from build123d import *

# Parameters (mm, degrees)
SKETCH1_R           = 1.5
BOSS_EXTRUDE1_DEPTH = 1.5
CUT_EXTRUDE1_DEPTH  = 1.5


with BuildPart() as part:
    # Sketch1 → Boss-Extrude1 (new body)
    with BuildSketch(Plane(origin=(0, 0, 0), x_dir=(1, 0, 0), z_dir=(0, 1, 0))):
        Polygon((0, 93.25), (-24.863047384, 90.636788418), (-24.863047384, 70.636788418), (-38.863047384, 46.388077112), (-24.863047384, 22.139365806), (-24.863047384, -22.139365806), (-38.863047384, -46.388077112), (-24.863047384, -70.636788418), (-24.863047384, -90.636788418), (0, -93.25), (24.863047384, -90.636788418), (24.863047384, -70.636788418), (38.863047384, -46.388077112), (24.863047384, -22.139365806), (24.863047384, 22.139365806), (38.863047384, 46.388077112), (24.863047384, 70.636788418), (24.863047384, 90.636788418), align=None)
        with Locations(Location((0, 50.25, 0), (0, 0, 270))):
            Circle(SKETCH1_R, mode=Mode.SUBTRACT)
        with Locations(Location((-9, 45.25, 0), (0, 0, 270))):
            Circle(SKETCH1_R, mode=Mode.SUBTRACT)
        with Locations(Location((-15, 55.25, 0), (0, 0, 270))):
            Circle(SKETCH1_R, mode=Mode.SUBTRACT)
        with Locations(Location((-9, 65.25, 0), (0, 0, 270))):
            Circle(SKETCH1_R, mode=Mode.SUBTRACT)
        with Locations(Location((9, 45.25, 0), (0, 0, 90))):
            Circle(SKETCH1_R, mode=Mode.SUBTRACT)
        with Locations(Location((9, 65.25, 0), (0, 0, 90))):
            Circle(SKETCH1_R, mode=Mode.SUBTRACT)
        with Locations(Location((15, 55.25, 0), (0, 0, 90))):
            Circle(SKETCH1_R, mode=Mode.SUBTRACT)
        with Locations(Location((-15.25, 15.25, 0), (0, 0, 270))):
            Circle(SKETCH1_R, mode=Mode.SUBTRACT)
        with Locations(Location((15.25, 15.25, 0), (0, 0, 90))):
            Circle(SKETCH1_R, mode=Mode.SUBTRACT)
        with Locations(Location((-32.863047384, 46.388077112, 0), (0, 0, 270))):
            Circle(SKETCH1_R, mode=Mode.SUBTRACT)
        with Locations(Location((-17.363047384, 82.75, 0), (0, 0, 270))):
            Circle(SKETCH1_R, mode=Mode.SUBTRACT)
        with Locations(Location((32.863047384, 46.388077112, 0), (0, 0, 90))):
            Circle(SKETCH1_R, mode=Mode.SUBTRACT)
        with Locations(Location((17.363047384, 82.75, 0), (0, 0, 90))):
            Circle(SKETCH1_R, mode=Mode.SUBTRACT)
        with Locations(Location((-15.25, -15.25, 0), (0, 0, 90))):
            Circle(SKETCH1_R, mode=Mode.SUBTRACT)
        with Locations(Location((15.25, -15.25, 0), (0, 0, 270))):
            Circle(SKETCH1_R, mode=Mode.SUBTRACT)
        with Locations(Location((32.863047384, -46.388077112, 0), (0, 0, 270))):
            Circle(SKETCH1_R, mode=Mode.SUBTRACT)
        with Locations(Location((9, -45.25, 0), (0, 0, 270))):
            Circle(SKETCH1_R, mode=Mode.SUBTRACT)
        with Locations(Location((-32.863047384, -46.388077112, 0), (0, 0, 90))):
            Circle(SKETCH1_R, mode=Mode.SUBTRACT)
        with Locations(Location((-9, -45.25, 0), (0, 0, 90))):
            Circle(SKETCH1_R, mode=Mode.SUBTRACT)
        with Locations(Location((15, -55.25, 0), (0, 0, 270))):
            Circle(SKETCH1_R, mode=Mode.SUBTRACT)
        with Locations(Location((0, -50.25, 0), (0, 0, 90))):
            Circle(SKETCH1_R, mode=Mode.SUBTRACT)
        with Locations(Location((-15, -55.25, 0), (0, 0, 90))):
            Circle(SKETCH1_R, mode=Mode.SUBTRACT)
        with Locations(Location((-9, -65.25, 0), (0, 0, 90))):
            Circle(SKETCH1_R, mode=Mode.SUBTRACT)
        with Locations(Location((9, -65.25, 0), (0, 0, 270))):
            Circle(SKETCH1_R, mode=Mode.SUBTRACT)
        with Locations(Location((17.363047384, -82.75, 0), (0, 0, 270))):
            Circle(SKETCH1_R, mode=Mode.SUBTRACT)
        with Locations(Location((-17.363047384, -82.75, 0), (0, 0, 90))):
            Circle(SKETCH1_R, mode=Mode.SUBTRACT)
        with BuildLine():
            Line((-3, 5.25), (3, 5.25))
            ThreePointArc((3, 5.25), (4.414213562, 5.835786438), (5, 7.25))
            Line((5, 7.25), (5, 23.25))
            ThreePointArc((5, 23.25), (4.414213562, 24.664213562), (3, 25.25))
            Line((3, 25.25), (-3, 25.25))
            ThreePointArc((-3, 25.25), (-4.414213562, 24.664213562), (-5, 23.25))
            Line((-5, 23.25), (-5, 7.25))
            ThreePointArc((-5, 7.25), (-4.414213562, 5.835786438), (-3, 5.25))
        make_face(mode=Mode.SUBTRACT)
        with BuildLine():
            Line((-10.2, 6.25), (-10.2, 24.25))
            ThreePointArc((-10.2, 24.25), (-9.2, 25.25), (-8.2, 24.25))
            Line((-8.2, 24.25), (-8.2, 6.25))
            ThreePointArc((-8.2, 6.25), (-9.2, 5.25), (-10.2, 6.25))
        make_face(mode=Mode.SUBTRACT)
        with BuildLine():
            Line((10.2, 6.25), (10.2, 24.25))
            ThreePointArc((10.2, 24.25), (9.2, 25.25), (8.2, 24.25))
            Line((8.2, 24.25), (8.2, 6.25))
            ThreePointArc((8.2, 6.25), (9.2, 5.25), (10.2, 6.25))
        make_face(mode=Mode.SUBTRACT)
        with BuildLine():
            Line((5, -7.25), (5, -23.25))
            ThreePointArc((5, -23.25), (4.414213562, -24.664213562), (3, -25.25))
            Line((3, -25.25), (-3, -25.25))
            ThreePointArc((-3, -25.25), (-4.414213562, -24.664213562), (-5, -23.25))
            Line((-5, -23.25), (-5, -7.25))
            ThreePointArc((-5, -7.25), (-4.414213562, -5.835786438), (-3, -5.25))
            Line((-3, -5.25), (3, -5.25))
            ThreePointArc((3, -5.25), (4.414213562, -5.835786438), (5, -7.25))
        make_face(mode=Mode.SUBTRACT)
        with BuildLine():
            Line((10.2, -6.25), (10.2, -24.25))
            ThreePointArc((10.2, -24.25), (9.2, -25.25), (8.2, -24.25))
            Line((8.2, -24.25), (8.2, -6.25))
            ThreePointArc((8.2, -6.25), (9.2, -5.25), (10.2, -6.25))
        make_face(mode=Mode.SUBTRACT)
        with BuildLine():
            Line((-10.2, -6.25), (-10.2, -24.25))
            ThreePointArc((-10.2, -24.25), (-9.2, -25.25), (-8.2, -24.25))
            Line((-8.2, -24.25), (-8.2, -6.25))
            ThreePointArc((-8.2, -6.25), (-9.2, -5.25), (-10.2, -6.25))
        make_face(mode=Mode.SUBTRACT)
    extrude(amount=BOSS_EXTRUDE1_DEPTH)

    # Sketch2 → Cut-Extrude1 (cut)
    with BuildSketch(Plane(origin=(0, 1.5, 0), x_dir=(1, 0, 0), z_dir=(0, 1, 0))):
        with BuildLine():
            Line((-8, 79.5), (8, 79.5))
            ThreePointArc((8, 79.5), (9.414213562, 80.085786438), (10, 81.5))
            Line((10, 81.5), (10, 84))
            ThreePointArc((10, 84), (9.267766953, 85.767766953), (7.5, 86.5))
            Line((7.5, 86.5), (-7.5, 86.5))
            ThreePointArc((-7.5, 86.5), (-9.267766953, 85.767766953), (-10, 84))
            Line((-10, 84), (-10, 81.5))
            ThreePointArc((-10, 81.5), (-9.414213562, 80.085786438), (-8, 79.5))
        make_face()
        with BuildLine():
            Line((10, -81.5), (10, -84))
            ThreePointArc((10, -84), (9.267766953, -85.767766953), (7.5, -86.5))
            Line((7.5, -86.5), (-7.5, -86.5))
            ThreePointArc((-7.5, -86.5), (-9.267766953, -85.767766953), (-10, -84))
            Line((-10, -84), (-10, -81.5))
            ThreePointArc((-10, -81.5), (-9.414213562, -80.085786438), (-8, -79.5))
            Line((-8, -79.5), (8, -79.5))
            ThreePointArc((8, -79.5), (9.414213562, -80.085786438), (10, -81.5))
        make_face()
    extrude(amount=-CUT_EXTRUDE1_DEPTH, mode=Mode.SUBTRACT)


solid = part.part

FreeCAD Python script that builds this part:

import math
import FreeCAD as App
import Part
import Sketcher

V = App.Vector
Q = App.Units.Quantity


def add_polygon(sketch, points):
    """Adds a closed chain of lines whose ends are joined by coincident constraints."""
    first, n = sketch.GeometryCount, len(points)
    for a, b in zip(points, points[1:] + points[:1]):
        sketch.addGeometry(Part.LineSegment(App.Vector(*a, 0), App.Vector(*b, 0)), False)
    for i in range(n):
        sketch.addConstraint(Sketcher.Constraint("Coincident", first + i, 2, first + (i + 1) % n, 1))

doc = App.newDocument("Part")
body = doc.addObject("PartDesign::Body", "Body")

# Sketch on XZ plane
sketch1 = body.newObject("Sketcher::SketchObject", "Sketch")
sketch1.AttachmentSupport = (doc.getObject("XZ_Plane"), [""])
sketch1.MapMode = "FlatFace"
add_polygon(sketch1, [(0, -93.2), (-24.9, -90.6), (-24.9, -70.6), (-38.9, -46.4), (-24.9, -22.1), (-24.9, 22.1), (-38.9, 46.4), (-24.9, 70.6), (-24.9, 90.6), (0, 93.2), (24.9, 90.6), (24.9, 70.6), (38.9, 46.4), (24.9, 22.1), (24.9, -22.1), (38.9, -46.4), (24.9, -70.6), (24.9, -90.6)])  # lines 0-17
sketch1.addGeometry(Part.Circle(V(-17.4, 82.8, 0), V(0, 0, 1), 1.5), False)  # 18
sketch1.addGeometry(Part.Circle(V(-32.9, 46.4, 0), V(0, 0, 1), 1.5), False)  # 19
sketch1.addGeometry(Part.Circle(V(-9, 65.2, 0), V(0, 0, 1), 1.5), False)  # 20
sketch1.addGeometry(Part.Circle(V(-15, 55.2, 0), V(0, 0, 1), 1.5), False)  # 21
sketch1.addGeometry(Part.Circle(V(-9, 45.2, 0), V(0, 0, 1), 1.5), False)  # 22
sketch1.addGeometry(Part.Circle(V(-15.2, 15.2, 0), V(0, 0, 1), 1.5), False)  # 23
sketch1.addGeometry(Part.LineSegment(V(-10.2, 24.2, 0), V(-10.2, 6.2, 0)), False)  # 24
sketch1.addGeometry(Part.ArcOfCircle(Part.Circle(V(-9.2, 6.2, 0), V(0, 0, 1), 1), math.radians(180), math.radians(360)), False)  # 25
sketch1.addGeometry(Part.LineSegment(V(-8.2, 6.2, 0), V(-8.2, 24.2, 0)), False)  # 26
sketch1.addGeometry(Part.ArcOfCircle(Part.Circle(V(-9.2, 24.2, 0), V(0, 0, 1), 1), math.radians(0), math.radians(180)), False)  # 27
sketch1.addGeometry(Part.Circle(V(9, 65.2, 0), V(0, 0, 1), 1.5), False)  # 28
sketch1.addGeometry(Part.Circle(V(0, 50.2, 0), V(0, 0, 1), 1.5), False)  # 29
sketch1.addGeometry(Part.Circle(V(15, 55.2, 0), V(0, 0, 1), 1.5), False)  # 30
sketch1.addGeometry(Part.Circle(V(9, 45.2, 0), V(0, 0, 1), 1.5), False)  # 31
sketch1.addGeometry(Part.Circle(V(17.4, 82.8, 0), V(0, 0, 1), 1.5), False)  # 32
sketch1.addGeometry(Part.Circle(V(32.9, 46.4, 0), V(0, 0, 1), 1.5), False)  # 33
sketch1.addGeometry(Part.ArcOfCircle(Part.Circle(V(3, 7.3, 0), V(0, 0, 1), 2), math.radians(-90), math.radians(0)), False)  # 34
sketch1.addGeometry(Part.LineSegment(V(5, 7.2, 0), V(5, 23.2, 0)), False)  # 35
sketch1.addGeometry(Part.ArcOfCircle(Part.Circle(V(3, 23.2, 0), V(0, 0, 1), 2), math.radians(0), math.radians(90)), False)  # 36
sketch1.addGeometry(Part.LineSegment(V(3, 25.2, 0), V(-3, 25.2, 0)), False)  # 37
sketch1.addGeometry(Part.ArcOfCircle(Part.Circle(V(-3, 23.2, 0), V(0, 0, 1), 2), math.radians(90), math.radians(180)), False)  # 38
sketch1.addGeometry(Part.LineSegment(V(-5, 23.2, 0), V(-5, 7.2, 0)), False)  # 39
sketch1.addGeometry(Part.ArcOfCircle(Part.Circle(V(-3, 7.3, 0), V(0, 0, 1), 2), math.radians(-180), math.radians(-90)), False)  # 40
sketch1.addGeometry(Part.LineSegment(V(-3, 5.2, 0), V(3, 5.2, 0)), False)  # 41
sketch1.addGeometry(Part.ArcOfCircle(Part.Circle(V(9.2, 6.2, 0), V(0, 0, 1), 1), math.radians(180), math.radians(360)), False)  # 42
sketch1.addGeometry(Part.LineSegment(V(10.2, 6.2, 0), V(10.2, 24.2, 0)), False)  # 43
sketch1.addGeometry(Part.ArcOfCircle(Part.Circle(V(9.2, 24.2, 0), V(0, 0, 1), 1), math.radians(0), math.radians(180)), False)  # 44
sketch1.addGeometry(Part.LineSegment(V(8.2, 24.2, 0), V(8.2, 6.2, 0)), False)  # 45
sketch1.addGeometry(Part.Circle(V(15.2, 15.2, 0), V(0, 0, 1), 1.5), False)  # 46
sketch1.addGeometry(Part.Circle(V(-15.2, -15.2, 0), V(0, 0, 1), 1.5), False)  # 47
sketch1.addGeometry(Part.ArcOfCircle(Part.Circle(V(-9.2, -6.2, 0), V(0, 0, 1), 1), math.radians(0), math.radians(180)), False)  # 48
sketch1.addGeometry(Part.LineSegment(V(-10.2, -6.2, 0), V(-10.2, -24.2, 0)), False)  # 49
sketch1.addGeometry(Part.ArcOfCircle(Part.Circle(V(-9.2, -24.2, 0), V(0, 0, 1), 1), math.radians(180), math.radians(360)), False)  # 50
sketch1.addGeometry(Part.LineSegment(V(-8.2, -24.2, 0), V(-8.2, -6.2, 0)), False)  # 51
sketch1.addGeometry(Part.Circle(V(-32.9, -46.4, 0), V(0, 0, 1), 1.5), False)  # 52
sketch1.addGeometry(Part.Circle(V(-17.4, -82.8, 0), V(0, 0, 1), 1.5), False)  # 53
sketch1.addGeometry(Part.Circle(V(-9, -45.2, 0), V(0, 0, 1), 1.5), False)  # 54
sketch1.addGeometry(Part.Circle(V(-15, -55.2, 0), V(0, 0, 1), 1.5), False)  # 55
sketch1.addGeometry(Part.Circle(V(-9, -65.2, 0), V(0, 0, 1), 1.5), False)  # 56
sketch1.addGeometry(Part.LineSegment(V(3, -5.2, 0), V(-3, -5.2, 0)), False)  # 57
sketch1.addGeometry(Part.ArcOfCircle(Part.Circle(V(-3, -7.3, 0), V(0, 0, 1), 2), math.radians(90), math.radians(180)), False)  # 58
sketch1.addGeometry(Part.LineSegment(V(-5, -7.2, 0), V(-5, -23.2, 0)), False)  # 59
sketch1.addGeometry(Part.ArcOfCircle(Part.Circle(V(-3, -23.2, 0), V(0, 0, 1), 2), math.radians(-180), math.radians(-90)), False)  # 60
sketch1.addGeometry(Part.LineSegment(V(-3, -25.2, 0), V(3, -25.2, 0)), False)  # 61
sketch1.addGeometry(Part.ArcOfCircle(Part.Circle(V(3, -23.2, 0), V(0, 0, 1), 2), math.radians(-90), math.radians(0)), False)  # 62
sketch1.addGeometry(Part.LineSegment(V(5, -23.2, 0), V(5, -7.2, 0)), False)  # 63
sketch1.addGeometry(Part.ArcOfCircle(Part.Circle(V(3, -7.3, 0), V(0, 0, 1), 2), math.radians(0), math.radians(90)), False)  # 64
sketch1.addGeometry(Part.LineSegment(V(10.2, -24.2, 0), V(10.2, -6.2, 0)), False)  # 65
sketch1.addGeometry(Part.ArcOfCircle(Part.Circle(V(9.2, -6.2, 0), V(0, 0, 1), 1), math.radians(0), math.radians(180)), False)  # 66
sketch1.addGeometry(Part.LineSegment(V(8.2, -6.2, 0), V(8.2, -24.2, 0)), False)  # 67
sketch1.addGeometry(Part.ArcOfCircle(Part.Circle(V(9.2, -24.2, 0), V(0, 0, 1), 1), math.radians(180), math.radians(360)), False)  # 68
sketch1.addGeometry(Part.Circle(V(15.2, -15.2, 0), V(0, 0, 1), 1.5), False)  # 69
sketch1.addGeometry(Part.Circle(V(0, -50.2, 0), V(0, 0, 1), 1.5), False)  # 70
sketch1.addGeometry(Part.Circle(V(9, -45.2, 0), V(0, 0, 1), 1.5), False)  # 71
sketch1.addGeometry(Part.Circle(V(15, -55.2, 0), V(0, 0, 1), 1.5), False)  # 72
sketch1.addGeometry(Part.Circle(V(9, -65.2, 0), V(0, 0, 1), 1.5), False)  # 73
sketch1.addGeometry(Part.Circle(V(32.9, -46.4, 0), V(0, 0, 1), 1.5), False)  # 74
sketch1.addGeometry(Part.Circle(V(17.4, -82.8, 0), V(0, 0, 1), 1.5), False)  # 75
sketch1.addConstraint([
    Sketcher.Constraint("Tangent", 24, 2, 25, 1),
    Sketcher.Constraint("Tangent", 25, 2, 26, 1),
    Sketcher.Constraint("Tangent", 26, 2, 27, 1),
    Sketcher.Constraint("Tangent", 27, 2, 24, 1),
    Sketcher.Constraint("Tangent", 34, 2, 35, 1),
    Sketcher.Constraint("Tangent", 35, 2, 36, 1),
    Sketcher.Constraint("Tangent", 36, 2, 37, 1),
    Sketcher.Constraint("Tangent", 37, 2, 38, 1),
    Sketcher.Constraint("Tangent", 38, 2, 39, 1),
    Sketcher.Constraint("Tangent", 39, 2, 40, 1),
    Sketcher.Constraint("Tangent", 40, 2, 41, 1),
    Sketcher.Constraint("Tangent", 41, 2, 34, 1),
    Sketcher.Constraint("Tangent", 42, 2, 43, 1),
    Sketcher.Constraint("Tangent", 43, 2, 44, 1),
    Sketcher.Constraint("Tangent", 44, 2, 45, 1),
    Sketcher.Constraint("Tangent", 45, 2, 42, 1),
    Sketcher.Constraint("Tangent", 48, 2, 49, 1),
    Sketcher.Constraint("Tangent", 49, 2, 50, 1),
    Sketcher.Constraint("Tangent", 50, 2, 51, 1),
    Sketcher.Constraint("Tangent", 51, 2, 48, 1),
    Sketcher.Constraint("Tangent", 57, 2, 58, 1),
    Sketcher.Constraint("Tangent", 58, 2, 59, 1),
    Sketcher.Constraint("Tangent", 59, 2, 60, 1),
    Sketcher.Constraint("Tangent", 60, 2, 61, 1),
    Sketcher.Constraint("Tangent", 61, 2, 62, 1),
    Sketcher.Constraint("Tangent", 62, 2, 63, 1),
    Sketcher.Constraint("Tangent", 63, 2, 64, 1),
    Sketcher.Constraint("Tangent", 64, 2, 57, 1),
    Sketcher.Constraint("Tangent", 65, 2, 66, 1),
    Sketcher.Constraint("Tangent", 66, 2, 67, 1),
    Sketcher.Constraint("Tangent", 67, 2, 68, 1),
    Sketcher.Constraint("Tangent", 68, 2, 65, 1),
    Sketcher.Constraint("Vertical", 1),
    Sketcher.Constraint("Vertical", 4),
    Sketcher.Constraint("Vertical", 7),
    Sketcher.Constraint("Vertical", 10),
    Sketcher.Constraint("Vertical", 13),
    Sketcher.Constraint("Vertical", 16),
    Sketcher.Constraint("Vertical", 24),
    Sketcher.Constraint("Vertical", 26),
    Sketcher.Constraint("Vertical", 35),
    Sketcher.Constraint("Horizontal", 37),
    Sketcher.Constraint("Vertical", 39),
    Sketcher.Constraint("Horizontal", 41),
    Sketcher.Constraint("Vertical", 43),
    Sketcher.Constraint("Vertical", 45),
    Sketcher.Constraint("Vertical", 49),
    Sketcher.Constraint("Vertical", 51),
    Sketcher.Constraint("Horizontal", 57),
    Sketcher.Constraint("Vertical", 59),
    Sketcher.Constraint("Horizontal", 61),
    Sketcher.Constraint("Vertical", 63),
    Sketcher.Constraint("Vertical", 65),
    Sketcher.Constraint("Vertical", 67),
    Sketcher.Constraint("Equal", 18, 19),
    Sketcher.Constraint("Equal", 19, 20),
    Sketcher.Constraint("Equal", 20, 21),
    Sketcher.Constraint("Equal", 21, 22),
    Sketcher.Constraint("Equal", 22, 23),
    Sketcher.Constraint("Equal", 23, 28),
    Sketcher.Constraint("Equal", 28, 29),
    Sketcher.Constraint("Equal", 29, 30),
    Sketcher.Constraint("Equal", 30, 31),
    Sketcher.Constraint("Equal", 31, 32),
    Sketcher.Constraint("Equal", 32, 33),
    Sketcher.Constraint("Equal", 34, 36),
    Sketcher.Constraint("Equal", 36, 38),
    Sketcher.Constraint("Equal", 38, 40),
    Sketcher.Constraint("Equal", 27, 42),
    Sketcher.Constraint("Equal", 33, 46),
    Sketcher.Constraint("Equal", 46, 47),
    Sketcher.Constraint("Equal", 44, 48),
    Sketcher.Constraint("Equal", 47, 52),
    Sketcher.Constraint("Equal", 52, 53),
    Sketcher.Constraint("Equal", 53, 54),
    Sketcher.Constraint("Equal", 54, 55),
    Sketcher.Constraint("Equal", 55, 56),
    Sketcher.Constraint("Equal", 40, 58),
    Sketcher.Constraint("Equal", 58, 60),
    Sketcher.Constraint("Equal", 60, 62),
    Sketcher.Constraint("Equal", 62, 64),
    Sketcher.Constraint("Equal", 50, 66),
    Sketcher.Constraint("Equal", 56, 69),
    Sketcher.Constraint("Equal", 69, 70),
    Sketcher.Constraint("Equal", 70, 71),
    Sketcher.Constraint("Equal", 71, 72),
    Sketcher.Constraint("Equal", 72, 73),
    Sketcher.Constraint("Equal", 73, 74),
    Sketcher.Constraint("Equal", 74, 75),
    Sketcher.Constraint("Symmetric", 46, 3, 47, 3, -1, 1),
    Sketcher.Constraint("Symmetric", 42, 3, 48, 3, -1, 1),
    Sketcher.Constraint("Symmetric", 33, 3, 52, 3, -1, 1),
    Sketcher.Constraint("Symmetric", 32, 3, 53, 3, -1, 1),
    Sketcher.Constraint("Symmetric", 31, 3, 54, 3, -1, 1),
    Sketcher.Constraint("Symmetric", 30, 3, 55, 3, -1, 1),
    Sketcher.Constraint("Symmetric", 28, 3, 56, 3, -1, 1),
    Sketcher.Constraint("Symmetric", 34, 3, 58, 3, -1, 1),
    Sketcher.Constraint("Symmetric", 38, 3, 62, 3, -1, 1),
    Sketcher.Constraint("Symmetric", 25, 3, 66, 3, -1, 1),
    Sketcher.Constraint("Symmetric", 23, 3, 69, 3, -1, 1),
    Sketcher.Constraint("Symmetric", 29, 3, 70, 3, -1, 1),
    Sketcher.Constraint("Symmetric", 22, 3, 71, 3, -1, 1),
    Sketcher.Constraint("Symmetric", 21, 3, 72, 3, -1, 1),
    Sketcher.Constraint("Symmetric", 20, 3, 73, 3, -1, 1),
    Sketcher.Constraint("Symmetric", 19, 3, 74, 3, -1, 1),
    Sketcher.Constraint("Symmetric", 18, 3, 75, 3, -1, 1),
    Sketcher.Constraint("Symmetric", 0, 2, 9, 2, -1, 1),
    Sketcher.Constraint("Symmetric", 2, 2, 11, 2, -1, 1),
    Sketcher.Constraint("Symmetric", 3, 2, 12, 2, -1, 1),
    Sketcher.Constraint("Symmetric", 5, 2, 14, 2, -1, 1),
    Sketcher.Constraint("Symmetric", 6, 2, 15, 2, -1, 1),
    Sketcher.Constraint("Symmetric", 8, 2, 17, 2, -1, 1),
    Sketcher.Constraint("Symmetric", 20, 3, 28, 3, -2),
    Sketcher.Constraint("Symmetric", 21, 3, 30, 3, -2),
    Sketcher.Constraint("Symmetric", 22, 3, 31, 3, -2),
    Sketcher.Constraint("Symmetric", 18, 3, 32, 3, -2),
    Sketcher.Constraint("Symmetric", 19, 3, 33, 3, -2),
    Sketcher.Constraint("Symmetric", 25, 3, 42, 3, -2),
    Sketcher.Constraint("Symmetric", 23, 3, 46, 3, -2),
    Sketcher.Constraint("Symmetric", 7, 2, 9, 2, -2),
    Sketcher.Constraint("Symmetric", 5, 2, 11, 2, -2),
    Sketcher.Constraint("PointOnObject", 29, 3, -2),
    Sketcher.Constraint("PointOnObject", 8, 2, -2),
    Sketcher.Constraint("Parallel", 2, 5),
    Sketcher.Constraint("Parallel", 3, 6),
    Sketcher.Constraint("Parallel", 5, 11),
    Sketcher.Constraint("Parallel", 11, 14),
    Sketcher.Constraint("Parallel", 8, 17),
    Sketcher.Constraint("Horizontal", 27, 3, 44, 3),
    Sketcher.Constraint("Horizontal", 50, 3, 68, 3),
    Sketcher.Constraint("Horizontal", 74, 3, 2, 2),
    Sketcher.Constraint("Horizontal", 6, 2, 10, 2),
    Sketcher.Constraint("Vertical", 20, 3, 22, 3),
    Sketcher.Constraint("Vertical", 40, 3, 58, 3),
    Sketcher.Constraint("Vertical", 1, 2, 3, 2),
    Sketcher.Constraint("Equal", 45, 49),
    Sketcher.Constraint("Diameter", 18, 3.0),
    Sketcher.Constraint("Radius", 25, 1.0),
    Sketcher.Constraint("Radius", 34, 2.0),
    Sketcher.Constraint("DistanceX", 37, 2, 37, 1, 6.0),
    Sketcher.Constraint("DistanceY", 1, 1, 1, 2, 20.0),
    Sketcher.Constraint("DistanceY", 24, 2, 24, 1, 18.0),
    Sketcher.Constraint("DistanceY", 35, 1, 35, 2, 16.0),
    Sketcher.Constraint("Angle", 0, Q("174 deg")),
    Sketcher.Constraint("Angle", 2, Q("120 deg")),
    Sketcher.Constraint("Distance", 0, 25.0),
    Sketcher.Constraint("Distance", 2, 28.0),
    Sketcher.Constraint("DistanceX", 20, 3, -1, 1, 9.0),
    Sketcher.Constraint("DistanceX", 21, 3, -1, 1, 15.0),
    Sketcher.Constraint("DistanceX", 25, 3, -1, 1, 9.2),
    Sketcher.Constraint("DistanceY", -1, 1, 18, 3, 82.75),
    Sketcher.Constraint("DistanceY", -1, 1, 20, 3, 65.25),
    Sketcher.Constraint("DistanceY", -1, 1, 21, 3, 55.25),
    Sketcher.Constraint("DistanceY", -1, 1, 22, 3, 45.25),
    Sketcher.Constraint("DistanceX", 23, 3, -1, 1, 15.25),
    Sketcher.Constraint("DistanceY", -1, 1, 23, 3, 15.25),
    Sketcher.Constraint("DistanceY", -1, 1, 25, 3, 6.25),
    Sketcher.Constraint("DistanceY", -1, 1, 29, 3, 50.25),
    Sketcher.Constraint("DistanceY", -1, 1, 34, 3, 7.25),
    Sketcher.Constraint("DistanceY", -1, 1, 8, 2, 93.25),
    Sketcher.Constraint("DistanceX", 18, 3, -1, 1, 17.363047),
    Sketcher.Constraint("DistanceX", 19, 3, -1, 1, 32.863047),
])
pad1 = body.newObject("PartDesign::Pad", "Pad")
pad1.Profile = sketch1
pad1.Length = 1.5
pad1.Reversed = True

# Sketch on XZ plane
sketch2 = body.newObject("Sketcher::SketchObject", "Sketch001")
sketch2.AttachmentSupport = (doc.getObject("XZ_Plane"), [""])
sketch2.MapMode = "FlatFace"
sketch2.AttachmentOffset = App.Placement(V(0, 0, -1.5), App.Rotation())
sketch2.addGeometry([
    Part.LineSegment(V(-8, -79.5, 0), V(8, -79.5, 0)),  # 0
    Part.ArcOfCircle(Part.Circle(V(8, -81.5, 0), V(0, 0, 1), 2), math.radians(0), math.radians(90)),  # 1
    Part.LineSegment(V(10, -81.5, 0), V(10, -84, 0)),  # 2
    Part.ArcOfCircle(Part.Circle(V(7.5, -84, 0), V(0, 0, 1), 2.5), math.radians(-90), math.radians(0)),  # 3
    Part.LineSegment(V(7.5, -86.5, 0), V(-7.5, -86.5, 0)),  # 4
    Part.ArcOfCircle(Part.Circle(V(-7.5, -84, 0), V(0, 0, 1), 2.5), math.radians(180), math.radians(270)),  # 5
    Part.LineSegment(V(-10, -84, 0), V(-10, -81.5, 0)),  # 6
    Part.ArcOfCircle(Part.Circle(V(-8, -81.5, 0), V(0, 0, 1), 2), math.radians(90), math.radians(180)),  # 7
    Part.LineSegment(V(10, 84, 0), V(10, 81.5, 0)),  # 8
    Part.ArcOfCircle(Part.Circle(V(8, 81.5, 0), V(0, 0, 1), 2), math.radians(-90), math.radians(0)),  # 9
    Part.LineSegment(V(8, 79.5, 0), V(-8, 79.5, 0)),  # 10
    Part.ArcOfCircle(Part.Circle(V(-8, 81.5, 0), V(0, 0, 1), 2), math.radians(-180), math.radians(-90)),  # 11
    Part.LineSegment(V(-10, 81.5, 0), V(-10, 84, 0)),  # 12
    Part.ArcOfCircle(Part.Circle(V(-7.5, 84, 0), V(0, 0, 1), 2.5), math.radians(90), math.radians(180)),  # 13
    Part.LineSegment(V(-7.5, 86.5, 0), V(7.5, 86.5, 0)),  # 14
    Part.ArcOfCircle(Part.Circle(V(7.5, 84, 0), V(0, 0, 1), 2.5), math.radians(0), math.radians(90)),  # 15
], False)
sketch2.addConstraint([
    Sketcher.Constraint("Tangent", 0, 2, 1, 2),
    Sketcher.Constraint("Tangent", 1, 1, 2, 1),
    Sketcher.Constraint("Tangent", 2, 2, 3, 2),
    Sketcher.Constraint("Tangent", 3, 1, 4, 1),
    Sketcher.Constraint("Tangent", 4, 2, 5, 2),
    Sketcher.Constraint("Tangent", 5, 1, 6, 1),
    Sketcher.Constraint("Tangent", 6, 2, 7, 2),
    Sketcher.Constraint("Tangent", 7, 1, 0, 1),
    Sketcher.Constraint("Tangent", 8, 2, 9, 2),
    Sketcher.Constraint("Tangent", 9, 1, 10, 1),
    Sketcher.Constraint("Tangent", 10, 2, 11, 2),
    Sketcher.Constraint("Tangent", 11, 1, 12, 1),
    Sketcher.Constraint("Tangent", 12, 2, 13, 2),
    Sketcher.Constraint("Tangent", 13, 1, 14, 1),
    Sketcher.Constraint("Tangent", 14, 2, 15, 2),
    Sketcher.Constraint("Tangent", 15, 1, 8, 1),
    Sketcher.Constraint("Horizontal", 0),
    Sketcher.Constraint("Vertical", 2),
    Sketcher.Constraint("Horizontal", 4),
    Sketcher.Constraint("Vertical", 6),
    Sketcher.Constraint("Vertical", 8),
    Sketcher.Constraint("Horizontal", 10),
    Sketcher.Constraint("Vertical", 12),
    Sketcher.Constraint("Horizontal", 14),
    Sketcher.Constraint("Equal", 3, 5),
    Sketcher.Constraint("Equal", 1, 7),
    Sketcher.Constraint("Equal", 7, 9),
    Sketcher.Constraint("Equal", 9, 11),
    Sketcher.Constraint("Equal", 5, 13),
    Sketcher.Constraint("Equal", 13, 15),
    Sketcher.Constraint("Symmetric", 7, 3, 9, 3, -1, 1),
    Sketcher.Constraint("Symmetric", 3, 3, 13, 3, -1, 1),
    Sketcher.Constraint("Vertical", 1, 3, 9, 3),
    Sketcher.Constraint("Radius", 1, 2.0),
    Sketcher.Constraint("Radius", 3, 2.5),
    Sketcher.Constraint("DistanceX", 0, 1, 0, 2, 16.0),
    Sketcher.Constraint("DistanceY", 2, 2, 2, 1, 2.5),
    Sketcher.Constraint("DistanceY", 3, 3, -1, 1, 84.0),
])
pocket1 = body.newObject("PartDesign::Pocket", "Pocket")
pocket1.Profile = sketch2
pocket1.Length = 1.5
pocket1.Reversed = True

doc.recompute()
